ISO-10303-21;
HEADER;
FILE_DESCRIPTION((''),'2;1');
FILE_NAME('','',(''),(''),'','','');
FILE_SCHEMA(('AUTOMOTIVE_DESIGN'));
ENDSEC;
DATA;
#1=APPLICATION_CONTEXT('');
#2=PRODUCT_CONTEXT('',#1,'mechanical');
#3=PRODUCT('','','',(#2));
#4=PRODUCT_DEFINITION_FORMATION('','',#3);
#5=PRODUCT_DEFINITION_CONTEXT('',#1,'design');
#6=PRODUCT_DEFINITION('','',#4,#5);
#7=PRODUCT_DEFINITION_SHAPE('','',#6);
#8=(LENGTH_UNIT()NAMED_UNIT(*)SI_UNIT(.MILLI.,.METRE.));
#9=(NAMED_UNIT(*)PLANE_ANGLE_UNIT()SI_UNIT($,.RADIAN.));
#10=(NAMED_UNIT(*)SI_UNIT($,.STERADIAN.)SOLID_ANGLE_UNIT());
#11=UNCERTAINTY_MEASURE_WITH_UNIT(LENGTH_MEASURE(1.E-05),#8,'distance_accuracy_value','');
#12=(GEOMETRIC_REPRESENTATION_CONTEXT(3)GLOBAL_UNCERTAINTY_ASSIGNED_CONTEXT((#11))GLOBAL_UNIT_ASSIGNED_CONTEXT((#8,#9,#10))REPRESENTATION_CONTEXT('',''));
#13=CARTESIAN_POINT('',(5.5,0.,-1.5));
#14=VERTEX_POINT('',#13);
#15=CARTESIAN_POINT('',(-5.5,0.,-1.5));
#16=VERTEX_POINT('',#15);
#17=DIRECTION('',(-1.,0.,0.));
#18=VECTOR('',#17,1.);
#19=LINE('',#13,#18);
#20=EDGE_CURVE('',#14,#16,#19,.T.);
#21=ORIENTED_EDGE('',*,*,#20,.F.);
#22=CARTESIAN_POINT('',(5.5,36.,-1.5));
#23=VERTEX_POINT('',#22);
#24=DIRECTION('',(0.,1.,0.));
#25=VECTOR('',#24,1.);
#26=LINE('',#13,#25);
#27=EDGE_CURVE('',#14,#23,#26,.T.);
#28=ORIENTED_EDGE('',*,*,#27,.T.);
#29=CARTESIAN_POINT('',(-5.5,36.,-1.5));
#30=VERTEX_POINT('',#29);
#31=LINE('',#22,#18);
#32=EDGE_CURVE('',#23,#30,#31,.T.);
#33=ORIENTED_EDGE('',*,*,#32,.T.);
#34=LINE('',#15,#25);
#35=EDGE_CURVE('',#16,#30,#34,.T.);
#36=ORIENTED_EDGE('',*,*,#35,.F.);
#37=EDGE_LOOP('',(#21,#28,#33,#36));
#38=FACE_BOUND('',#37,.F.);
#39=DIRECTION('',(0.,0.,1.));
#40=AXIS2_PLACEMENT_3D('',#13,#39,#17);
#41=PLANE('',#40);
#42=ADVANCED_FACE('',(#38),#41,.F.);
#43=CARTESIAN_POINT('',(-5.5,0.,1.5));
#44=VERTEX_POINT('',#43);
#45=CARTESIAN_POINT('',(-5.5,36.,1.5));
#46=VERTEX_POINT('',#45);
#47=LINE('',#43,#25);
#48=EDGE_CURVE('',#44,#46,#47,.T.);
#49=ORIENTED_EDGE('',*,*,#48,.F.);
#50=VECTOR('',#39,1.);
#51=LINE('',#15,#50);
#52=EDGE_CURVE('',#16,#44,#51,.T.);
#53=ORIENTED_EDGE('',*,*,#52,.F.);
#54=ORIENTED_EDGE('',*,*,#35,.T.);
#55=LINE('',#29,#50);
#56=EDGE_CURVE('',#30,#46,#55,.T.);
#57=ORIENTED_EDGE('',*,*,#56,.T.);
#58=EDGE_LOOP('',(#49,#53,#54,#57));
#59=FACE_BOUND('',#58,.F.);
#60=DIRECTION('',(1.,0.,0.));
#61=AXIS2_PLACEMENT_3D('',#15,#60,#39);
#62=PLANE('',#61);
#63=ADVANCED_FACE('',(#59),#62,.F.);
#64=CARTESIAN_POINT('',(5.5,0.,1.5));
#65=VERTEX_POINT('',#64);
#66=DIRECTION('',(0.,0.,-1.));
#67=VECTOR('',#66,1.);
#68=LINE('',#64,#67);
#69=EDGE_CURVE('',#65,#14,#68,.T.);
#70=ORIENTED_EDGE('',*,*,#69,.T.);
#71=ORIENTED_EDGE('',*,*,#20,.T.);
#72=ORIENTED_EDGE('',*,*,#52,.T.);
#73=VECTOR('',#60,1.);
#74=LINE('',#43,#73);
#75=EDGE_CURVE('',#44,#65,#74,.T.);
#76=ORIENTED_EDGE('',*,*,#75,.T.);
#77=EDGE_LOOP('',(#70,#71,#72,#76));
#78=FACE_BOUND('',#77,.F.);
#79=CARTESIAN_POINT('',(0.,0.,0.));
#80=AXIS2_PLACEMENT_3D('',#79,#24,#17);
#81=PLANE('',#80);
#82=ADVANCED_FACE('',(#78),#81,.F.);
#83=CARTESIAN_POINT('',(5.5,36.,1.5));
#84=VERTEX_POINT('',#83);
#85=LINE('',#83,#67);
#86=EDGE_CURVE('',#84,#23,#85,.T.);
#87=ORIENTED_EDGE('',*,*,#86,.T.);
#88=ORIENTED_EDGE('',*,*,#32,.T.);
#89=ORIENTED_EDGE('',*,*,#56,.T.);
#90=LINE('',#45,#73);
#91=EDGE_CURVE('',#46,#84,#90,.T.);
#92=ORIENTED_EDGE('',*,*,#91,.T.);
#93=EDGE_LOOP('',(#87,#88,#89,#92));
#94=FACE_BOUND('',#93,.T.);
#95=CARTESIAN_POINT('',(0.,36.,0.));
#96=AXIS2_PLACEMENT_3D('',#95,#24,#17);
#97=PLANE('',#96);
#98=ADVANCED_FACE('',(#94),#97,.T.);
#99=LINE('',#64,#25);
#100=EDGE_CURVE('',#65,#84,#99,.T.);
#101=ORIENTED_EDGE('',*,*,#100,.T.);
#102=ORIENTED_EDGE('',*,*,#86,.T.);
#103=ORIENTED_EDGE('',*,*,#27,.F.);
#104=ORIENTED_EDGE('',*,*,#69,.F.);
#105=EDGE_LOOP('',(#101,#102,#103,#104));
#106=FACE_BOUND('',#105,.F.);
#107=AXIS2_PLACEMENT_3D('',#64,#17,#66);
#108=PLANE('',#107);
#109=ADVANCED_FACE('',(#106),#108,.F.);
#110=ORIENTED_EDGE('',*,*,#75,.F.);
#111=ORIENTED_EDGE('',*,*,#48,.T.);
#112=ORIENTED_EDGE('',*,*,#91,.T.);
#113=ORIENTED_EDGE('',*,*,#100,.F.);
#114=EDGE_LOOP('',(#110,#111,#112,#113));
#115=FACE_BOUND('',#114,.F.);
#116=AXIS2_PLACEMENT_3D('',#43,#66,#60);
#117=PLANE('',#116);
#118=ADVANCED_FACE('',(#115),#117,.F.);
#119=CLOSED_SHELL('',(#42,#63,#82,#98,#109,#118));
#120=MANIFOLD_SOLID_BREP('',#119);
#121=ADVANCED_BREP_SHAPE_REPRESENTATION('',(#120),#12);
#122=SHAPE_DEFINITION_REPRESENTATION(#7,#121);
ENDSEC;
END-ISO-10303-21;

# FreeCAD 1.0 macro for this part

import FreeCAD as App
import Part
import Sketcher
from FreeCAD import Vector
Q = App.Units.Quantity

doc = App.newDocument("Part")
body = doc.addObject("PartDesign::Body", "Body")

# Sketch on XZ plane
sketch1 = body.newObject("Sketcher::SketchObject", "Sketch")
sketch1.AttachmentSupport = (doc.getObject("XZ_Plane"), [""])
sketch1.MapMode = "FlatFace"
sketch1.addGeometry([
    Part.LineSegment(Vector(5.5, 1.5, 0), Vector(5.5, -1.5, 0)),
    Part.LineSegment(Vector(5.5, -1.5, 0), Vector(-5.5, -1.5, 0)),
    Part.LineSegment(Vector(-5.5, -1.5, 0), Vector(-5.5, 1.5, 0)),
    Part.LineSegment(Vector(-5.5, 1.5, 0), Vector(5.5, 1.5, 0)),
], False)
sketch1.addConstraint([
    Sketcher.Constraint("Coincident", 0, 2, 1, 1),
    Sketcher.Constraint("Coincident", 1, 2, 2, 1),
    Sketcher.Constraint("Coincident", 2, 2, 3, 1),
    Sketcher.Constraint("Coincident", 3, 2, 0, 1),
    Sketcher.Constraint("Vertical", 0),
    Sketcher.Constraint("Horizontal", 1),
    Sketcher.Constraint("Vertical", 2),
    Sketcher.Constraint("Horizontal", 3),
    Sketcher.Constraint("Symmetric", 0, 2, 2, 2, -1, 1),
    Sketcher.Constraint("DistanceX", 1, 2, 1, 1, Q("11 mm")),
    Sketcher.Constraint("DistanceY", 0, 2, 0, 1, Q("3 mm")),
])
pad1 = body.newObject("PartDesign::Pad", "Pad")
pad1.Profile = sketch1
pad1.Length = 36
pad1.Reversed = True

doc.recompute()
